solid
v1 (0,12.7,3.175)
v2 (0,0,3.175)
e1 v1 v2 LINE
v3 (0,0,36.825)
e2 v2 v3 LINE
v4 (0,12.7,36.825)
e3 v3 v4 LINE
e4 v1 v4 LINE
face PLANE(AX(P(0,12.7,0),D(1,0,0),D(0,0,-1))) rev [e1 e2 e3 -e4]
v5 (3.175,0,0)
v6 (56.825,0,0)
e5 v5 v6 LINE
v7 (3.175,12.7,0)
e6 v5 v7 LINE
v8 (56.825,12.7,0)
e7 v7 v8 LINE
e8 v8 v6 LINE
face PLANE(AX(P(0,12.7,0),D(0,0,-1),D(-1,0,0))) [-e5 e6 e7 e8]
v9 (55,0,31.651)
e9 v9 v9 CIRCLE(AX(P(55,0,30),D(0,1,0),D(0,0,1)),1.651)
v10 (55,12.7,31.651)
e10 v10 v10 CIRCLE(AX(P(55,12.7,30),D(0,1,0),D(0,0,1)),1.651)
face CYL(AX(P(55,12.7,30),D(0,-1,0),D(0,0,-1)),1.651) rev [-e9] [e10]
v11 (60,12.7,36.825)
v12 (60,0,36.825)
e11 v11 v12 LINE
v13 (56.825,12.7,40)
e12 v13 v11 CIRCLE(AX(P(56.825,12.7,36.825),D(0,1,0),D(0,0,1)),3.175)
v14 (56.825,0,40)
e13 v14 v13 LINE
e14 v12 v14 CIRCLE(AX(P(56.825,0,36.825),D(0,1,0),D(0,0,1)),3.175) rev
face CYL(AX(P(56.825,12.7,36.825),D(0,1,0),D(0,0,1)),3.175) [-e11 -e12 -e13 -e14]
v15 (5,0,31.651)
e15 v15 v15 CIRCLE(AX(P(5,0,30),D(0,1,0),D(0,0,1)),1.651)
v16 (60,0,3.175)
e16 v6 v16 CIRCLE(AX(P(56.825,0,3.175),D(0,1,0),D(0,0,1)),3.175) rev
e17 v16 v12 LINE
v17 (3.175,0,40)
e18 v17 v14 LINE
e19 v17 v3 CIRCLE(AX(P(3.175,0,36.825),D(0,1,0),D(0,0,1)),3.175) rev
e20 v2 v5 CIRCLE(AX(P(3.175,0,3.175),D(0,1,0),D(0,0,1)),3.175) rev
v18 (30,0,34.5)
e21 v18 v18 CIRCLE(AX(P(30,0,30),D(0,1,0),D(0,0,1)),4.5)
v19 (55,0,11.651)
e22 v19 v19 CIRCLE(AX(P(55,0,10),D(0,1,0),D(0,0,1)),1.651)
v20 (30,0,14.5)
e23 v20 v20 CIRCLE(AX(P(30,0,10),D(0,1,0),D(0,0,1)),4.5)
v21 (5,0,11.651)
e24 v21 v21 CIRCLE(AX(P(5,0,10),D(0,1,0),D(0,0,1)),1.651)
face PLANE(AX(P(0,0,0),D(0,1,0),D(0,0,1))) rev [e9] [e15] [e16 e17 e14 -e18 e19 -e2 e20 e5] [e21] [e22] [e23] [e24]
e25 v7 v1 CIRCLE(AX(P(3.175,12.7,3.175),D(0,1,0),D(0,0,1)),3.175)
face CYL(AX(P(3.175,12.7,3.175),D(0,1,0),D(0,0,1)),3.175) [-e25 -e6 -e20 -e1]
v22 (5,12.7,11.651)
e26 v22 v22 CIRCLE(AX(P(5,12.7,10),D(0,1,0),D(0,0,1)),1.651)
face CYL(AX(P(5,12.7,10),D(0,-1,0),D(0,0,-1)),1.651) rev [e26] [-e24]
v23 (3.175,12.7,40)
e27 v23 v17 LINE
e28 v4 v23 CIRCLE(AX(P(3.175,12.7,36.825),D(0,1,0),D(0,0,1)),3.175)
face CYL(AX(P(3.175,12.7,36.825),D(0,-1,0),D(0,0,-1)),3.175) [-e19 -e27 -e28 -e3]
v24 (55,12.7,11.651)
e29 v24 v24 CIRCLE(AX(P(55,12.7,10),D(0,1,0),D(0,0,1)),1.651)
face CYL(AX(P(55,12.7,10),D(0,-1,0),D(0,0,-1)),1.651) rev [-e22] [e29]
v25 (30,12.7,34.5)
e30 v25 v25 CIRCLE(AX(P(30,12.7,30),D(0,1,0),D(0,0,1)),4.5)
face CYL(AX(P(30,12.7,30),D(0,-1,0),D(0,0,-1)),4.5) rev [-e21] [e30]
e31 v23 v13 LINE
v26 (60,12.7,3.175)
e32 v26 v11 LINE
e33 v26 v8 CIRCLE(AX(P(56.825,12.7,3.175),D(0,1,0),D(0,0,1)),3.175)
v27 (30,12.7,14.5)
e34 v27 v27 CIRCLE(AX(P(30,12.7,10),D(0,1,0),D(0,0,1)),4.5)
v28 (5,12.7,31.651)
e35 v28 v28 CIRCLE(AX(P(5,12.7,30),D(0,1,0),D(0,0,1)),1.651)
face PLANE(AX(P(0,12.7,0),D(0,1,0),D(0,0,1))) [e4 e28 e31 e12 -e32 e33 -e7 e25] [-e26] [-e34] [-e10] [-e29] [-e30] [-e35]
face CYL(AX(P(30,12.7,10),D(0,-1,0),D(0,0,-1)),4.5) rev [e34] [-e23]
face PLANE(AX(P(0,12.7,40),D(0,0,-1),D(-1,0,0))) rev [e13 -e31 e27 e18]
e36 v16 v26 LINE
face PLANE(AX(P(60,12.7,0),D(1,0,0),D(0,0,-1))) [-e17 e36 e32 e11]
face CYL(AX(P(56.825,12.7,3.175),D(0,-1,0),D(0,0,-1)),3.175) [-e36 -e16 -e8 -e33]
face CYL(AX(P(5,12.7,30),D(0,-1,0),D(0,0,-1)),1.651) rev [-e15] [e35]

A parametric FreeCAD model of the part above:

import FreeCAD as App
import Part
import Sketcher
from FreeCAD import Vector
Q = App.Units.Quantity


def edges_at(feature, points):
    """Names of the edges that pass closest to the given points."""
    edges = feature.Shape.Edges
    near = lambda p: min(range(len(edges)), key=lambda i: edges[i].distToShape(Part.Vertex(*p))[0])
    return sorted({f"Edge{near(p) + 1}" for p in points})


def add_polygon(sketch, points):
    """Adds a closed chain of lines whose ends are joined by coincident constraints."""
    first, n = sketch.GeometryCount, len(points)
    for a, b in zip(points, points[1:] + points[:1]):
        sketch.addGeometry(Part.LineSegment(App.Vector(*a, 0), App.Vector(*b, 0)), False)
    for i in range(n):
        sketch.addConstraint(Sketcher.Constraint("Coincident", first + i, 2, first + (i + 1) % n, 1))

doc = App.newDocument("Part")
params = doc.addObject("Spreadsheet::Sheet", "Params")
for row, (alias, value) in enumerate([
    ("sketch1_diameter", "9 mm"),
    ("sketch1_width", "60 mm"),
    ("sketch1_height", "40 mm"),
    ("pad1_length", "12.7 mm"),
    ("fillet_radius", "3.175 mm"),
], start=1):
    params.set(f"A{row}", alias)
    params.set(f"B{row}", "=" + value)
    params.setAlias(f"B{row}", alias)

body = doc.addObject("PartDesign::Body", "Body")

# Sketch on XZ plane
sketch1 = body.newObject("Sketcher::SketchObject", "Sketch")
sketch1.AttachmentSupport = (doc.getObject("XZ_Plane"), [""])
sketch1.MapMode = "FlatFace"
add_polygon(sketch1, [(0, 0), (0, 40), (60, 40), (60, 0)])  # lines 0-3
sketch1.addGeometry(Part.Circle(Vector(5, 30, 0), Vector(0, 0, 1), 1.7), False)  # 4
sketch1.addGeometry(Part.Circle(Vector(30, 30, 0), Vector(0, 0, 1), 4.5), False)  # 5
sketch1.addGeometry(Part.Circle(Vector(55, 30, 0), Vector(0, 0, 1), 1.7), False)  # 6
sketch1.addGeometry(Part.Circle(Vector(5, 10, 0), Vector(0, 0, 1), 1.7), False)  # 7
sketch1.addGeometry(Part.Circle(Vector(30, 10, 0), Vector(0, 0, 1), 4.5), False)  # 8
sketch1.addGeometry(Part.Circle(Vector(55, 10, 0), Vector(0, 0, 1), 1.7), False)  # 9
sketch1.addConstraint(Sketcher.Constraint("Vertical", 0))
sketch1.addConstraint(Sketcher.Constraint("Horizontal", 1))
sketch1.addConstraint(Sketcher.Constraint("Vertical", 2))
sketch1.addConstraint(Sketcher.Constraint("Horizontal", 3))
sketch1.addConstraint(Sketcher.Constraint("Coincident", 3, 2, -1, 1))
sketch1.addConstraint(Sketcher.Constraint("Equal", 4, 6))
sketch1.addConstraint(Sketcher.Constraint("Equal", 6, 7))
sketch1.addConstraint(Sketcher.Constraint("Equal", 5, 8))
sketch1.addConstraint(Sketcher.Constraint("Equal", 7, 9))
sketch1.addConstraint(Sketcher.Constraint("Horizontal", 4, 3, 5, 3))
sketch1.addConstraint(Sketcher.Constraint("Horizontal", 5, 3, 6, 3))
sketch1.addConstraint(Sketcher.Constraint("Horizontal", 7, 3, 8, 3))
sketch1.addConstraint(Sketcher.Constraint("Horizontal", 8, 3, 9, 3))
sketch1.addConstraint(Sketcher.Constraint("Vertical", 4, 3, 7, 3))
sketch1.addConstraint(Sketcher.Constraint("Vertical", 5, 3, 8, 3))
sketch1.addConstraint(Sketcher.Constraint("Vertical", 6, 3, 9, 3))
sketch1.addConstraint(Sketcher.Constraint("Diameter", 5, Q("9 mm")))
sketch1.addConstraint(Sketcher.Constraint("DistanceX", 1, 1, 1, 2, Q("60 mm")))
sketch1.addConstraint(Sketcher.Constraint("DistanceY", 0, 1, 0, 2, Q("40 mm")))
sketch1.addConstraint(Sketcher.Constraint("Diameter", 4, Q("3.302 mm")))
sketch1.addConstraint(Sketcher.Constraint("DistanceX", -1, 1, 4, 3, Q("5 mm")))
sketch1.addConstraint(Sketcher.Constraint("DistanceY", -1, 1, 4, 3, Q("30 mm")))
sketch1.addConstraint(Sketcher.Constraint("DistanceX", -1, 1, 5, 3, Q("30 mm")))
sketch1.addConstraint(Sketcher.Constraint("DistanceX", -1, 1, 6, 3, Q("55 mm")))
sketch1.addConstraint(Sketcher.Constraint("DistanceY", -1, 1, 7, 3, Q("10 mm")))
sketch1.setExpression("Constraints[20]", "Params.sketch1_diameter")
sketch1.setExpression("Constraints[21]", "Params.sketch1_width")
sketch1.setExpression("Constraints[22]", "Params.sketch1_height")
pad1 = body.newObject("PartDesign::Pad", "Pad")
pad1.Profile = sketch1
pad1.setExpression("Length", "Params.pad1_length")
pad1.Reversed = True
doc.recompute()

fillet = body.newObject("PartDesign::Fillet", "Fillet")
fillet.Base = (pad1, edges_at(pad1, [
    (60, 6.35, 40),
    (0, 6.35, 40),
    (0, 6.35, 0),
    (60, 6.35, 0),
]))
fillet.setExpression("Radius", "Params.fillet_radius")

doc.recompute()
